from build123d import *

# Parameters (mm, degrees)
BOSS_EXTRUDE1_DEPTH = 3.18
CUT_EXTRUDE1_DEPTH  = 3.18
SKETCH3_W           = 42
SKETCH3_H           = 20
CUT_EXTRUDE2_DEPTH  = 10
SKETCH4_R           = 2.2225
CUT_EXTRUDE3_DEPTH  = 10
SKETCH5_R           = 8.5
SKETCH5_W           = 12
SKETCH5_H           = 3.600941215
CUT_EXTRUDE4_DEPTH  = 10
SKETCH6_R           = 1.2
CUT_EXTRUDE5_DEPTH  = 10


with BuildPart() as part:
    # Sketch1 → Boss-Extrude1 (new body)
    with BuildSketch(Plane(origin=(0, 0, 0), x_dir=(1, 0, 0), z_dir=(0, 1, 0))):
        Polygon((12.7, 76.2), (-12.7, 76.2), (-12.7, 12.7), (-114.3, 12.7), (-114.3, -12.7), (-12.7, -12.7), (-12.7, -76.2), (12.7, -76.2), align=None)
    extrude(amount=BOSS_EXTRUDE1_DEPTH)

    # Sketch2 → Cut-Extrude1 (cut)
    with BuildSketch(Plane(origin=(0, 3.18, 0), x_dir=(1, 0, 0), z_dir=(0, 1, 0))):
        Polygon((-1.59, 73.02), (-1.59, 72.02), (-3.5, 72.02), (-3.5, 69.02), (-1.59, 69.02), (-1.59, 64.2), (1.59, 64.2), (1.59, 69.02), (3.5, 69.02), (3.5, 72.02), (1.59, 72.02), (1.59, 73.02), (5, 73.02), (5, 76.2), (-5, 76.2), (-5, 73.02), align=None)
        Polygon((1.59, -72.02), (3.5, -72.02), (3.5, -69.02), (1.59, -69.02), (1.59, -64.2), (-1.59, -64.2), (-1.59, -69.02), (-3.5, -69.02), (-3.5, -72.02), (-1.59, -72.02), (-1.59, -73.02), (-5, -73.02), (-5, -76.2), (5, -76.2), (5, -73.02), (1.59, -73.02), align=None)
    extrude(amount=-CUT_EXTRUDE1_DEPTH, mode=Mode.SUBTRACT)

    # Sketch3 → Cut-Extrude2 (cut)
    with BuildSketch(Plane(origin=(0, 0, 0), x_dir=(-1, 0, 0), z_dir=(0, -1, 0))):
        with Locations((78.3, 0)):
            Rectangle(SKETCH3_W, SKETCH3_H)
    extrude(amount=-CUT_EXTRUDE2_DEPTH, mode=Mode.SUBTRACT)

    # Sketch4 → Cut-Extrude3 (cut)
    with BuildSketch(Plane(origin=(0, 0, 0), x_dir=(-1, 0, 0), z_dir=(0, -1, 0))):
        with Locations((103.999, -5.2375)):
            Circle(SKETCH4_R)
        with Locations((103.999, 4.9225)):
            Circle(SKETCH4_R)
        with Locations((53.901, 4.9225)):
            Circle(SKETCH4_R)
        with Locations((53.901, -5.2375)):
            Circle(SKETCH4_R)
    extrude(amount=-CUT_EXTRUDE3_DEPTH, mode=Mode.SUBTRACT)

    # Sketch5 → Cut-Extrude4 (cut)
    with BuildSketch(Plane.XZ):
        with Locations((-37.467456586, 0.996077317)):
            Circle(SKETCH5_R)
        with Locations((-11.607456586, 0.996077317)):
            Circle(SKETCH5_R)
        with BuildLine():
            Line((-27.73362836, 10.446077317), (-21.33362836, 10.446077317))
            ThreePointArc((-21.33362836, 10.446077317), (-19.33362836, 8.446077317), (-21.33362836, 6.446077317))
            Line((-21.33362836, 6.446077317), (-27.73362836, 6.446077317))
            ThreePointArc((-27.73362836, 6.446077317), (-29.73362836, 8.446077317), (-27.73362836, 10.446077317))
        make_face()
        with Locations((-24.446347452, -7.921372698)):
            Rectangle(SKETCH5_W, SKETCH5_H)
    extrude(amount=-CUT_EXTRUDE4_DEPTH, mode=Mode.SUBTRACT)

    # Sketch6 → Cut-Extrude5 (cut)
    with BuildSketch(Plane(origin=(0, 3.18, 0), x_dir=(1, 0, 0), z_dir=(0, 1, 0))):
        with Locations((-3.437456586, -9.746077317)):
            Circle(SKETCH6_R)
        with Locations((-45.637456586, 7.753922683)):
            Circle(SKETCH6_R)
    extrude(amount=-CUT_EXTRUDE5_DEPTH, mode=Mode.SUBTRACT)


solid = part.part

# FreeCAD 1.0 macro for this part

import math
import FreeCAD as App
import Part
import Sketcher
Q = App.Units.Quantity

doc = App.newDocument("Part")
body = doc.addObject("PartDesign::Body", "Body")

# Sketch on XZ plane
sketch1 = body.newObject("Sketcher::SketchObject", "Sketch")
sketch1.AttachmentSupport = (doc.getObject("XZ_Plane"), [""])
sketch1.MapMode = "FlatFace"
sketch1.addGeometry(Part.LineSegment(App.Vector(13, -76, 0), App.Vector(-13, -76, 0)), False)
sketch1.addGeometry(Part.LineSegment(App.Vector(-13, -76, 0), App.Vector(-13, -13, 0)), False)
sketch1.addGeometry(Part.LineSegment(App.Vector(-13, -13, 0), App.Vector(-114, -13, 0)), False)
sketch1.addGeometry(Part.LineSegment(App.Vector(-114, -13, 0), App.Vector(-114, 13, 0)), False)
sketch1.addGeometry(Part.LineSegment(App.Vector(-114, 13, 0), App.Vector(-13, 13, 0)), False)
sketch1.addGeometry(Part.LineSegment(App.Vector(-13, 13, 0), App.Vector(-13, 76, 0)), False)
sketch1.addGeometry(Part.LineSegment(App.Vector(-13, 76, 0), App.Vector(13, 76, 0)), False)
sketch1.addGeometry(Part.LineSegment(App.Vector(13, 76, 0), App.Vector(13, -76, 0)), False)
sketch1.addConstraint(Sketcher.Constraint("Coincident", 0, 2, 1, 1))
sketch1.addConstraint(Sketcher.Constraint("Coincident", 1, 2, 2, 1))
sketch1.addConstraint(Sketcher.Constraint("Coincident", 2, 2, 3, 1))
sketch1.addConstraint(Sketcher.Constraint("Coincident", 3, 2, 4, 1))
sketch1.addConstraint(Sketcher.Constraint("Coincident", 4, 2, 5, 1))
sketch1.addConstraint(Sketcher.Constraint("Coincident", 5, 2, 6, 1))
sketch1.addConstraint(Sketcher.Constraint("Coincident", 6, 2, 7, 1))
sketch1.addConstraint(Sketcher.Constraint("Coincident", 7, 2, 0, 1))
sketch1.addConstraint(Sketcher.Constraint("Horizontal", 0))
sketch1.addConstraint(Sketcher.Constraint("Vertical", 1))
sketch1.addConstraint(Sketcher.Constraint("Horizontal", 2))
sketch1.addConstraint(Sketcher.Constraint("Vertical", 3))
sketch1.addConstraint(Sketcher.Constraint("Horizontal", 4))
sketch1.addConstraint(Sketcher.Constraint("Vertical", 5))
sketch1.addConstraint(Sketcher.Constraint("Horizontal", 6))
sketch1.addConstraint(Sketcher.Constraint("Vertical", 7))
sketch1.addConstraint(Sketcher.Constraint("Symmetric", 0, 2, 6, 2, -1, 1))
sketch1.addConstraint(Sketcher.Constraint("Symmetric", 1, 2, 4, 2, -1))
sketch1.addConstraint(Sketcher.Constraint("Equal", 6, 3))
sketch1.addConstraint(Sketcher.Constraint("DistanceX", 0, 2, 0, 1, Q("25.4 mm")))
sketch1.addConstraint(Sketcher.Constraint("DistanceX", 2, 2, 2, 1, Q("101.6 mm")))
sketch1.addConstraint(Sketcher.Constraint("DistanceY", 1, 1, 1, 2, Q("63.5 mm")))
pad1 = body.newObject("PartDesign::Pad", "Pad")
pad1.Profile = sketch1
pad1.Length = 3.18
pad1.Reversed = True

# Sketch on XZ plane
sketch2 = body.newObject("Sketcher::SketchObject", "Sketch001")
sketch2.AttachmentSupport = (doc.getObject("XZ_Plane"), [""])
sketch2.MapMode = "FlatFace"
sketch2.AttachmentOffset = App.Placement(App.Vector(0, 0, -3.18), App.Rotation())
sketch2.addGeometry(Part.LineSegment(App.Vector(-1.6, -73, 0), App.Vector(-1.6, -72, 0)), False)
sketch2.addGeometry(Part.LineSegment(App.Vector(-1.6, -72, 0), App.Vector(-3.5, -72, 0)), False)
sketch2.addGeometry(Part.LineSegment(App.Vector(-3.5, -72, 0), App.Vector(-3.5, -69, 0)), False)
sketch2.addGeometry(Part.LineSegment(App.Vector(-3.5, -69, 0), App.Vector(-1.6, -69, 0)), False)
sketch2.addGeometry(Part.LineSegment(App.Vector(-1.6, -69, 0), App.Vector(-1.6, -64.2, 0)), False)
sketch2.addGeometry(Part.LineSegment(App.Vector(-1.6, -64.2, 0), App.Vector(1.6, -64.2, 0)), False)
sketch2.addGeometry(Part.LineSegment(App.Vector(1.6, -64.2, 0), App.Vector(1.6, -69, 0)), False)
sketch2.addGeometry(Part.LineSegment(App.Vector(1.6, -69, 0), App.Vector(3.5, -69, 0)), False)
sketch2.addGeometry(Part.LineSegment(App.Vector(3.5, -69, 0), App.Vector(3.5, -72, 0)), False)
sketch2.addGeometry(Part.LineSegment(App.Vector(3.5, -72, 0), App.Vector(1.6, -72, 0)), False)
sketch2.addGeometry(Part.LineSegment(App.Vector(1.6, -72, 0), App.Vector(1.6, -73, 0)), False)
sketch2.addGeometry(Part.LineSegment(App.Vector(1.6, -73, 0), App.Vector(5, -73, 0)), False)
sketch2.addGeometry(Part.LineSegment(App.Vector(5, -73, 0), App.Vector(5, -76.2, 0)), False)
sketch2.addGeometry(Part.LineSegment(App.Vector(5, -76.2, 0), App.Vector(-5, -76.2, 0)), False)
sketch2.addGeometry(Part.LineSegment(App.Vector(-5, -76.2, 0), App.Vector(-5, -73, 0)), False)
sketch2.addGeometry(Part.LineSegment(App.Vector(-5, -73, 0), App.Vector(-1.6, -73, 0)), False)
sketch2.addGeometry(Part.LineSegment(App.Vector(1.6, 72, 0), App.Vector(3.5, 72, 0)), False)
sketch2.addGeometry(Part.LineSegment(App.Vector(3.5, 72, 0), App.Vector(3.5, 69, 0)), False)
sketch2.addGeometry(Part.LineSegment(App.Vector(3.5, 69, 0), App.Vector(1.6, 69, 0)), False)
sketch2.addGeometry(Part.LineSegment(App.Vector(1.6, 69, 0), App.Vector(1.6, 64.2, 0)), False)
sketch2.addGeometry(Part.LineSegment(App.Vector(1.6, 64.2, 0), App.Vector(-1.6, 64.2, 0)), False)
sketch2.addGeometry(Part.LineSegment(App.Vector(-1.6, 64.2, 0), App.Vector(-1.6, 69, 0)), False)
sketch2.addGeometry(Part.LineSegment(App.Vector(-1.6, 69, 0), App.Vector(-3.5, 69, 0)), False)
sketch2.addGeometry(Part.LineSegment(App.Vector(-3.5, 69, 0), App.Vector(-3.5, 72, 0)), False)
sketch2.addGeometry(Part.LineSegment(App.Vector(-3.5, 72, 0), App.Vector(-1.6, 72, 0)), False)
sketch2.addGeometry(Part.LineSegment(App.Vector(-1.6, 72, 0), App.Vector(-1.6, 73, 0)), False)
sketch2.addGeometry(Part.LineSegment(App.Vector(-1.6, 73, 0), App.Vector(-5, 73, 0)), False)
sketch2.addGeometry(Part.LineSegment(App.Vector(-5, 73, 0), App.Vector(-5, 76.2, 0)), False)
sketch2.addGeometry(Part.LineSegment(App.Vector(-5, 76.2, 0), App.Vector(5, 76.2, 0)), False)
sketch2.addGeometry(Part.LineSegment(App.Vector(5, 76.2, 0), App.Vector(5, 73, 0)), False)
sketch2.addGeometry(Part.LineSegment(App.Vector(5, 73, 0), App.Vector(1.6, 73, 0)), False)
sketch2.addGeometry(Part.LineSegment(App.Vector(1.6, 73, 0), App.Vector(1.6, 72, 0)), False)
sketch2.addConstraint(Sketcher.Constraint("Coincident", 0, 2, 1, 1))
sketch2.addConstraint(Sketcher.Constraint("Coincident", 1, 2, 2, 1))
sketch2.addConstraint(Sketcher.Constraint("Coincident", 2, 2, 3, 1))
sketch2.addConstraint(Sketcher.Constraint("Coincident", 3, 2, 4, 1))
sketch2.addConstraint(Sketcher.Constraint("Coincident", 4, 2, 5, 1))
sketch2.addConstraint(Sketcher.Constraint("Coincident", 5, 2, 6, 1))
sketch2.addConstraint(Sketcher.Constraint("Coincident", 6, 2, 7, 1))
sketch2.addConstraint(Sketcher.Constraint("Coincident", 7, 2, 8, 1))
sketch2.addConstraint(Sketcher.Constraint("Coincident", 8, 2, 9, 1))
sketch2.addConstraint(Sketcher.Constraint("Coincident", 9, 2, 10, 1))
sketch2.addConstraint(Sketcher.Constraint("Coincident", 10, 2, 11, 1))
sketch2.addConstraint(Sketcher.Constraint("Coincident", 11, 2, 12, 1))
sketch2.addConstraint(Sketcher.Constraint("Coincident", 12, 2, 13, 1))
sketch2.addConstraint(Sketcher.Constraint("Coincident", 13, 2, 14, 1))
sketch2.addConstraint(Sketcher.Constraint("Coincident", 14, 2, 15, 1))
sketch2.addConstraint(Sketcher.Constraint("Coincident", 15, 2, 0, 1))
sketch2.addConstraint(Sketcher.Constraint("Coincident", 16, 2, 17, 1))
sketch2.addConstraint(Sketcher.Constraint("Coincident", 17, 2, 18, 1))
sketch2.addConstraint(Sketcher.Constraint("Coincident", 18, 2, 19, 1))
sketch2.addConstraint(Sketcher.Constraint("Coincident", 19, 2, 20, 1))
sketch2.addConstraint(Sketcher.Constraint("Coincident", 20, 2, 21, 1))
sketch2.addConstraint(Sketcher.Constraint("Coincident", 21, 2, 22, 1))
sketch2.addConstraint(Sketcher.Constraint("Coincident", 22, 2, 23, 1))
sketch2.addConstraint(Sketcher.Constraint("Coincident", 23, 2, 24, 1))
sketch2.addConstraint(Sketcher.Constraint("Coincident", 24, 2, 25, 1))
sketch2.addConstraint(Sketcher.Constraint("Coincident", 25, 2, 26, 1))
sketch2.addConstraint(Sketcher.Constraint("Coincident", 26, 2, 27, 1))
sketch2.addConstraint(Sketcher.Constraint("Coincident", 27, 2, 28, 1))
sketch2.addConstraint(Sketcher.Constraint("Coincident", 28, 2, 29, 1))
sketch2.addConstraint(Sketcher.Constraint("Coincident", 29, 2, 30, 1))
sketch2.addConstraint(Sketcher.Constraint("Coincident", 30, 2, 31, 1))
sketch2.addConstraint(Sketcher.Constraint("Coincident", 31, 2, 16, 1))
sketch2.addConstraint(Sketcher.Constraint("Vertical", 0))
sketch2.addConstraint(Sketcher.Constraint("Horizontal", 1))
sketch2.addConstraint(Sketcher.Constraint("Vertical", 2))
sketch2.addConstraint(Sketcher.Constraint("Horizontal", 3))
sketch2.addConstraint(Sketcher.Constraint("Vertical", 4))
sketch2.addConstraint(Sketcher.Constraint("Horizontal", 5))
sketch2.addConstraint(Sketcher.Constraint("Vertical", 6))
sketch2.addConstraint(Sketcher.Constraint("Horizontal", 7))
sketch2.addConstraint(Sketcher.Constraint("Vertical", 8))
sketch2.addConstraint(Sketcher.Constraint("Horizontal", 9))
sketch2.addConstraint(Sketcher.Constraint("Vertical", 10))
sketch2.addConstraint(Sketcher.Constraint("Horizontal", 11))
sketch2.addConstraint(Sketcher.Constraint("Vertical", 12))
sketch2.addConstraint(Sketcher.Constraint("Horizontal", 13))
sketch2.addConstraint(Sketcher.Constraint("Vertical", 14))
sketch2.addConstraint(Sketcher.Constraint("Horizontal", 15))
sketch2.addConstraint(Sketcher.Constraint("Horizontal", 16))
sketch2.addConstraint(Sketcher.Constraint("Vertical", 17))
sketch2.addConstraint(Sketcher.Constraint("Horizontal", 18))
sketch2.addConstraint(Sketcher.Constraint("Vertical", 19))
sketch2.addConstraint(Sketcher.Constraint("Horizontal", 20))
sketch2.addConstraint(Sketcher.Constraint("Vertical", 21))
sketch2.addConstraint(Sketcher.Constraint("Horizontal", 22))
sketch2.addConstraint(Sketcher.Constraint("Vertical", 23))
sketch2.addConstraint(Sketcher.Constraint("Horizontal", 24))
sketch2.addConstraint(Sketcher.Constraint("Vertical", 25))
sketch2.addConstraint(Sketcher.Constraint("Horizontal", 26))
sketch2.addConstraint(Sketcher.Constraint("Vertical", 27))
sketch2.addConstraint(Sketcher.Constraint("Horizontal", 28))
sketch2.addConstraint(Sketcher.Constraint("Vertical", 29))
sketch2.addConstraint(Sketcher.Constraint("Horizontal", 30))
sketch2.addConstraint(Sketcher.Constraint("Vertical", 31))
sketch2.addConstraint(Sketcher.Constraint("Symmetric", 1, 2, 16, 2, -1, 1))
sketch2.addConstraint(Sketcher.Constraint("Symmetric", 3, 2, 18, 2, -1, 1))
sketch2.addConstraint(Sketcher.Constraint("Symmetric", 5, 2, 20, 2, -1, 1))
sketch2.addConstraint(Sketcher.Constraint("Symmetric", 7, 2, 22, 2, -1, 1))
sketch2.addConstraint(Sketcher.Constraint("Symmetric", 9, 2, 24, 2, -1, 1))
sketch2.addConstraint(Sketcher.Constraint("Symmetric", 11, 2, 26, 2, -1, 1))
sketch2.addConstraint(Sketcher.Constraint("Symmetric", 13, 2, 28, 2, -1, 1))
sketch2.addConstraint(Sketcher.Constraint("Symmetric", 15, 2, 30, 2, -1, 1))
sketch2.addConstraint(Sketcher.Constraint("Symmetric", 3, 2, 6, 2, -2))
sketch2.addConstraint(Sketcher.Constraint("Symmetric", 1, 2, 8, 2, -2))
sketch2.addConstraint(Sketcher.Constraint("Symmetric", 11, 2, 14, 2, -2))
sketch2.addConstraint(Sketcher.Constraint("Vertical", 0, 2, 3, 2))
sketch2.addConstraint(Sketcher.Constraint("Vertical", 6, 2, 9, 2))
sketch2.addConstraint(Sketcher.Constraint("Equal", 20, 12))
sketch2.addConstraint(Sketcher.Constraint("DistanceX", 13, 2, 13, 1, Q("10 mm")))
sketch2.addConstraint(Sketcher.Constraint("DistanceY", 0, 1, 0, 2, Q("1 mm")))
sketch2.addConstraint(Sketcher.Constraint("DistanceY", 2, 1, 2, 2, Q("3 mm")))
sketch2.addConstraint(Sketcher.Constraint("DistanceX", 2, 2, 7, 2, Q("7 mm")))
sketch2.addConstraint(Sketcher.Constraint("DistanceX", 1, 2, 1, 1, Q("1.91 mm")))
sketch2.addConstraint(Sketcher.Constraint("DistanceY", 4, 1, 4, 2, Q("4.82 mm")))
sketch2.addConstraint(Sketcher.Constraint("DistanceY", 4, 2, -1, 1, Q("64.2 mm")))
pocket1 = body.newObject("PartDesign::Pocket", "Pocket")
pocket1.Profile = sketch2
pocket1.Length = 3.18
pocket1.Reversed = True

# Sketch on XZ plane
sketch3 = body.newObject("Sketcher::SketchObject", "Sketch002")
sketch3.AttachmentSupport = (doc.getObject("XZ_Plane"), [""])
sketch3.MapMode = "FlatFace"
sketch3.addGeometry(Part.LineSegment(App.Vector(-57, -10, 0), App.Vector(-57, 10, 0)), False)
sketch3.addGeometry(Part.LineSegment(App.Vector(-57, 10, 0), App.Vector(-99, 10, 0)), False)
sketch3.addGeometry(Part.LineSegment(App.Vector(-99, 10, 0), App.Vector(-99, -10, 0)), False)
sketch3.addGeometry(Part.LineSegment(App.Vector(-99, -10, 0), App.Vector(-57, -10, 0)), False)
sketch3.addConstraint(Sketcher.Constraint("Coincident", 0, 2, 1, 1))
sketch3.addConstraint(Sketcher.Constraint("Coincident", 1, 2, 2, 1))
sketch3.addConstraint(Sketcher.Constraint("Coincident", 2, 2, 3, 1))
sketch3.addConstraint(Sketcher.Constraint("Coincident", 3, 2, 0, 1))
sketch3.addConstraint(Sketcher.Constraint("Vertical", 0))
sketch3.addConstraint(Sketcher.Constraint("Horizontal", 1))
sketch3.addConstraint(Sketcher.Constraint("Vertical", 2))
sketch3.addConstraint(Sketcher.Constraint("Horizontal", 3))
sketch3.addConstraint(Sketcher.Constraint("DistanceX", 1, 2, 1, 1, Q("42 mm")))
sketch3.addConstraint(Sketcher.Constraint("DistanceY", 0, 1, 0, 2, Q("20 mm")))
sketch3.addConstraint(Sketcher.Constraint("DistanceY", -1, 1, 0, 2, Q("10 mm")))
sketch3.addConstraint(Sketcher.Constraint("DistanceX", 0, 2, -1, 1, Q("57.3 mm")))
pocket2 = body.newObject("PartDesign::Pocket", "Pocket001")
pocket2.Profile = sketch3
pocket2.Length = 10

# Sketch on XZ plane
sketch4 = body.newObject("Sketcher::SketchObject", "Sketch003")
sketch4.AttachmentSupport = (doc.getObject("XZ_Plane"), [""])
sketch4.MapMode = "FlatFace"
sketch4.addGeometry(Part.Circle(App.Vector(-104, 5.2, 0), App.Vector(0, 0, 1), 2.2), False)
sketch4.addGeometry(Part.Circle(App.Vector(-104, -4.9, 0), App.Vector(0, 0, 1), 2.2), False)
sketch4.addGeometry(Part.Circle(App.Vector(-53.9, -4.9, 0), App.Vector(0, 0, 1), 2.2), False)
sketch4.addGeometry(Part.Circle(App.Vector(-53.9, 5.2, 0), App.Vector(0, 0, 1), 2.2), False)
sketch4.addConstraint(Sketcher.Constraint("Equal", 0, 1))
sketch4.addConstraint(Sketcher.Constraint("Equal", 1, 2))
sketch4.addConstraint(Sketcher.Constraint("Equal", 2, 3))
sketch4.addConstraint(Sketcher.Constraint("Horizontal", 1, 3, 2, 3))
sketch4.addConstraint(Sketcher.Constraint("Horizontal", 0, 3, 3, 3))
sketch4.addConstraint(Sketcher.Constraint("Vertical", 0, 3, 1, 3))
sketch4.addConstraint(Sketcher.Constraint("Vertical", 2, 3, 3, 3))
sketch4.addConstraint(Sketcher.Constraint("Diameter", 0, Q("4.445 mm")))
sketch4.addConstraint(Sketcher.Constraint("DistanceY", 1, 3, 0, 3, Q("10.16 mm")))
sketch4.addConstraint(Sketcher.Constraint("DistanceX", 0, 3, -1, 1, Q("103.999 mm")))
sketch4.addConstraint(Sketcher.Constraint("DistanceX", 2, 3, -1, 1, Q("53.901 mm")))
sketch4.addConstraint(Sketcher.Constraint("DistanceY", -1, 1, 0, 3, Q("5.2375 mm")))
pocket3 = body.newObject("PartDesign::Pocket", "Pocket002")
pocket3.Profile = sketch4
pocket3.Length = 10

# Sketch on XZ plane
sketch5 = body.newObject("Sketcher::SketchObject", "Sketch004")
sketch5.AttachmentSupport = (doc.getObject("XZ_Plane"), [""])
sketch5.MapMode = "FlatFace"
sketch5.addGeometry(Part.Circle(App.Vector(-37.5, 1, 0), App.Vector(0, 0, 1), 8.5), False)
sketch5.addGeometry(Part.Circle(App.Vector(-11.6, 1, 0), App.Vector(0, 0, 1), 8.5), False)
sketch5.addGeometry(Part.LineSegment(App.Vector(-21.3, 10.4, 0), App.Vector(-27.7, 10.4, 0)), False)
sketch5.addGeometry(Part.ArcOfCircle(Part.Circle(App.Vector(-27.7, 8.4, 0), App.Vector(0, 0, 1), 2), math.radians(90), math.radians(270)), False)
sketch5.addGeometry(Part.LineSegment(App.Vector(-27.7, 6.4, 0), App.Vector(-21.3, 6.4, 0)), False)
sketch5.addGeometry(Part.ArcOfCircle(Part.Circle(App.Vector(-21.3, 8.4, 0), App.Vector(0, 0, 1), 2), math.radians(-90), math.radians(90)), False)
sketch5.addGeometry(Part.LineSegment(App.Vector(-30.4, -6.1, 0), App.Vector(-30.4, -9.7, 0)), False)
sketch5.addGeometry(Part.LineSegment(App.Vector(-30.4, -9.7, 0), App.Vector(-18.4, -9.7, 0)), False)
sketch5.addGeometry(Part.LineSegment(App.Vector(-18.4, -9.7, 0), App.Vector(-18.4, -6.1, 0)), False)
sketch5.addGeometry(Part.LineSegment(App.Vector(-18.4, -6.1, 0), App.Vector(-30.4, -6.1, 0)), False)
sketch5.addConstraint(Sketcher.Constraint("Tangent", 2, 2, 3, 1))
sketch5.addConstraint(Sketcher.Constraint("Tangent", 3, 2, 4, 1))
sketch5.addConstraint(Sketcher.Constraint("Tangent", 4, 2, 5, 1))
sketch5.addConstraint(Sketcher.Constraint("Tangent", 5, 2, 2, 1))
sketch5.addConstraint(Sketcher.Constraint("Coincident", 6, 2, 7, 1))
sketch5.addConstraint(Sketcher.Constraint("Coincident", 7, 2, 8, 1))
sketch5.addConstraint(Sketcher.Constraint("Coincident", 8, 2, 9, 1))
sketch5.addConstraint(Sketcher.Constraint("Coincident", 9, 2, 6, 1))
sketch5.addConstraint(Sketcher.Constraint("Horizontal", 2))
sketch5.addConstraint(Sketcher.Constraint("Horizontal", 4))
sketch5.addConstraint(Sketcher.Constraint("Vertical", 6))
sketch5.addConstraint(Sketcher.Constraint("Horizontal", 7))
sketch5.addConstraint(Sketcher.Constraint("Vertical", 8))
sketch5.addConstraint(Sketcher.Constraint("Horizontal", 9))
sketch5.addConstraint(Sketcher.Constraint("Equal", 0, 1))
sketch5.addConstraint(Sketcher.Constraint("Horizontal", 0, 3, 1, 3))
sketch5.addConstraint(Sketcher.Constraint("Diameter", 0, Q("17 mm")))
sketch5.addConstraint(Sketcher.Constraint("Radius", 3, Q("2 mm")))
sketch5.addConstraint(Sketcher.Constraint("DistanceX", 7, 1, 7, 2, Q("12 mm")))
sketch5.addConstraint(Sketcher.Constraint("DistanceX", 2, 2, 2, 1, Q("6.4 mm")))
sketch5.addConstraint(Sketcher.Constraint("DistanceX", 0, 3, 1, 3, Q("25.86 mm")))
sketch5.addConstraint(Sketcher.Constraint("DistanceY", 0, 3, 3, 3, Q("7.45 mm")))
sketch5.addConstraint(Sketcher.Constraint("DistanceY", 6, 2, 6, 1, Q("3.600941 mm")))
sketch5.addConstraint(Sketcher.Constraint("DistanceX", 3, 3, -1, 1, Q("27.733628 mm")))
sketch5.addConstraint(Sketcher.Constraint("DistanceX", 0, 3, 3, 3, Q("9.733828 mm")))
sketch5.addConstraint(Sketcher.Constraint("DistanceX", 0, 3, 6, 2, Q("7.021109 mm")))
sketch5.addConstraint(Sketcher.Constraint("DistanceY", 6, 2, 0, 3, Q("10.717921 mm")))
sketch5.addConstraint(Sketcher.Constraint("DistanceY", -1, 1, 0, 3, Q("0.996077 mm")))
pocket4 = body.newObject("PartDesign::Pocket", "Pocket003")
pocket4.Profile = sketch5
pocket4.Length = 10

# Sketch on XZ plane
sketch6 = body.newObject("Sketcher::SketchObject", "Sketch005")
sketch6.AttachmentSupport = (doc.getObject("XZ_Plane"), [""])
sketch6.MapMode = "FlatFace"
sketch6.AttachmentOffset = App.Placement(App.Vector(0, 0, -3.18), App.Rotation())
sketch6.addGeometry(Part.Circle(App.Vector(-3.4, 9.7, 0), App.Vector(0, 0, 1), 1.2), False)
sketch6.addGeometry(Part.Circle(App.Vector(-45.6, -7.8, 0), App.Vector(0, 0, 1), 1.2), False)
sketch6.addConstraint(Sketcher.Constraint("Equal", 0, 1))
sketch6.addConstraint(Sketcher.Constraint("Diameter", 0, Q("2.4 mm")))
sketch6.addConstraint(Sketcher.Constraint("DistanceX", 1, 3, 0, 3, Q("42.2 mm")))
sketch6.addConstraint(Sketcher.Constraint("DistanceY", 1, 3, 0, 3, Q("17.5 mm")))
sketch6.addConstraint(Sketcher.Constraint("DistanceX", 0, 3, -1, 1, Q("3.437457 mm")))
sketch6.addConstraint(Sketcher.Constraint("DistanceY", -1, 1, 0, 3, Q("9.746077 mm")))
pocket5 = body.newObject("PartDesign::Pocket", "Pocket004")
pocket5.Profile = sketch6
pocket5.Length = 10
pocket5.Reversed = True

doc.recompute()
